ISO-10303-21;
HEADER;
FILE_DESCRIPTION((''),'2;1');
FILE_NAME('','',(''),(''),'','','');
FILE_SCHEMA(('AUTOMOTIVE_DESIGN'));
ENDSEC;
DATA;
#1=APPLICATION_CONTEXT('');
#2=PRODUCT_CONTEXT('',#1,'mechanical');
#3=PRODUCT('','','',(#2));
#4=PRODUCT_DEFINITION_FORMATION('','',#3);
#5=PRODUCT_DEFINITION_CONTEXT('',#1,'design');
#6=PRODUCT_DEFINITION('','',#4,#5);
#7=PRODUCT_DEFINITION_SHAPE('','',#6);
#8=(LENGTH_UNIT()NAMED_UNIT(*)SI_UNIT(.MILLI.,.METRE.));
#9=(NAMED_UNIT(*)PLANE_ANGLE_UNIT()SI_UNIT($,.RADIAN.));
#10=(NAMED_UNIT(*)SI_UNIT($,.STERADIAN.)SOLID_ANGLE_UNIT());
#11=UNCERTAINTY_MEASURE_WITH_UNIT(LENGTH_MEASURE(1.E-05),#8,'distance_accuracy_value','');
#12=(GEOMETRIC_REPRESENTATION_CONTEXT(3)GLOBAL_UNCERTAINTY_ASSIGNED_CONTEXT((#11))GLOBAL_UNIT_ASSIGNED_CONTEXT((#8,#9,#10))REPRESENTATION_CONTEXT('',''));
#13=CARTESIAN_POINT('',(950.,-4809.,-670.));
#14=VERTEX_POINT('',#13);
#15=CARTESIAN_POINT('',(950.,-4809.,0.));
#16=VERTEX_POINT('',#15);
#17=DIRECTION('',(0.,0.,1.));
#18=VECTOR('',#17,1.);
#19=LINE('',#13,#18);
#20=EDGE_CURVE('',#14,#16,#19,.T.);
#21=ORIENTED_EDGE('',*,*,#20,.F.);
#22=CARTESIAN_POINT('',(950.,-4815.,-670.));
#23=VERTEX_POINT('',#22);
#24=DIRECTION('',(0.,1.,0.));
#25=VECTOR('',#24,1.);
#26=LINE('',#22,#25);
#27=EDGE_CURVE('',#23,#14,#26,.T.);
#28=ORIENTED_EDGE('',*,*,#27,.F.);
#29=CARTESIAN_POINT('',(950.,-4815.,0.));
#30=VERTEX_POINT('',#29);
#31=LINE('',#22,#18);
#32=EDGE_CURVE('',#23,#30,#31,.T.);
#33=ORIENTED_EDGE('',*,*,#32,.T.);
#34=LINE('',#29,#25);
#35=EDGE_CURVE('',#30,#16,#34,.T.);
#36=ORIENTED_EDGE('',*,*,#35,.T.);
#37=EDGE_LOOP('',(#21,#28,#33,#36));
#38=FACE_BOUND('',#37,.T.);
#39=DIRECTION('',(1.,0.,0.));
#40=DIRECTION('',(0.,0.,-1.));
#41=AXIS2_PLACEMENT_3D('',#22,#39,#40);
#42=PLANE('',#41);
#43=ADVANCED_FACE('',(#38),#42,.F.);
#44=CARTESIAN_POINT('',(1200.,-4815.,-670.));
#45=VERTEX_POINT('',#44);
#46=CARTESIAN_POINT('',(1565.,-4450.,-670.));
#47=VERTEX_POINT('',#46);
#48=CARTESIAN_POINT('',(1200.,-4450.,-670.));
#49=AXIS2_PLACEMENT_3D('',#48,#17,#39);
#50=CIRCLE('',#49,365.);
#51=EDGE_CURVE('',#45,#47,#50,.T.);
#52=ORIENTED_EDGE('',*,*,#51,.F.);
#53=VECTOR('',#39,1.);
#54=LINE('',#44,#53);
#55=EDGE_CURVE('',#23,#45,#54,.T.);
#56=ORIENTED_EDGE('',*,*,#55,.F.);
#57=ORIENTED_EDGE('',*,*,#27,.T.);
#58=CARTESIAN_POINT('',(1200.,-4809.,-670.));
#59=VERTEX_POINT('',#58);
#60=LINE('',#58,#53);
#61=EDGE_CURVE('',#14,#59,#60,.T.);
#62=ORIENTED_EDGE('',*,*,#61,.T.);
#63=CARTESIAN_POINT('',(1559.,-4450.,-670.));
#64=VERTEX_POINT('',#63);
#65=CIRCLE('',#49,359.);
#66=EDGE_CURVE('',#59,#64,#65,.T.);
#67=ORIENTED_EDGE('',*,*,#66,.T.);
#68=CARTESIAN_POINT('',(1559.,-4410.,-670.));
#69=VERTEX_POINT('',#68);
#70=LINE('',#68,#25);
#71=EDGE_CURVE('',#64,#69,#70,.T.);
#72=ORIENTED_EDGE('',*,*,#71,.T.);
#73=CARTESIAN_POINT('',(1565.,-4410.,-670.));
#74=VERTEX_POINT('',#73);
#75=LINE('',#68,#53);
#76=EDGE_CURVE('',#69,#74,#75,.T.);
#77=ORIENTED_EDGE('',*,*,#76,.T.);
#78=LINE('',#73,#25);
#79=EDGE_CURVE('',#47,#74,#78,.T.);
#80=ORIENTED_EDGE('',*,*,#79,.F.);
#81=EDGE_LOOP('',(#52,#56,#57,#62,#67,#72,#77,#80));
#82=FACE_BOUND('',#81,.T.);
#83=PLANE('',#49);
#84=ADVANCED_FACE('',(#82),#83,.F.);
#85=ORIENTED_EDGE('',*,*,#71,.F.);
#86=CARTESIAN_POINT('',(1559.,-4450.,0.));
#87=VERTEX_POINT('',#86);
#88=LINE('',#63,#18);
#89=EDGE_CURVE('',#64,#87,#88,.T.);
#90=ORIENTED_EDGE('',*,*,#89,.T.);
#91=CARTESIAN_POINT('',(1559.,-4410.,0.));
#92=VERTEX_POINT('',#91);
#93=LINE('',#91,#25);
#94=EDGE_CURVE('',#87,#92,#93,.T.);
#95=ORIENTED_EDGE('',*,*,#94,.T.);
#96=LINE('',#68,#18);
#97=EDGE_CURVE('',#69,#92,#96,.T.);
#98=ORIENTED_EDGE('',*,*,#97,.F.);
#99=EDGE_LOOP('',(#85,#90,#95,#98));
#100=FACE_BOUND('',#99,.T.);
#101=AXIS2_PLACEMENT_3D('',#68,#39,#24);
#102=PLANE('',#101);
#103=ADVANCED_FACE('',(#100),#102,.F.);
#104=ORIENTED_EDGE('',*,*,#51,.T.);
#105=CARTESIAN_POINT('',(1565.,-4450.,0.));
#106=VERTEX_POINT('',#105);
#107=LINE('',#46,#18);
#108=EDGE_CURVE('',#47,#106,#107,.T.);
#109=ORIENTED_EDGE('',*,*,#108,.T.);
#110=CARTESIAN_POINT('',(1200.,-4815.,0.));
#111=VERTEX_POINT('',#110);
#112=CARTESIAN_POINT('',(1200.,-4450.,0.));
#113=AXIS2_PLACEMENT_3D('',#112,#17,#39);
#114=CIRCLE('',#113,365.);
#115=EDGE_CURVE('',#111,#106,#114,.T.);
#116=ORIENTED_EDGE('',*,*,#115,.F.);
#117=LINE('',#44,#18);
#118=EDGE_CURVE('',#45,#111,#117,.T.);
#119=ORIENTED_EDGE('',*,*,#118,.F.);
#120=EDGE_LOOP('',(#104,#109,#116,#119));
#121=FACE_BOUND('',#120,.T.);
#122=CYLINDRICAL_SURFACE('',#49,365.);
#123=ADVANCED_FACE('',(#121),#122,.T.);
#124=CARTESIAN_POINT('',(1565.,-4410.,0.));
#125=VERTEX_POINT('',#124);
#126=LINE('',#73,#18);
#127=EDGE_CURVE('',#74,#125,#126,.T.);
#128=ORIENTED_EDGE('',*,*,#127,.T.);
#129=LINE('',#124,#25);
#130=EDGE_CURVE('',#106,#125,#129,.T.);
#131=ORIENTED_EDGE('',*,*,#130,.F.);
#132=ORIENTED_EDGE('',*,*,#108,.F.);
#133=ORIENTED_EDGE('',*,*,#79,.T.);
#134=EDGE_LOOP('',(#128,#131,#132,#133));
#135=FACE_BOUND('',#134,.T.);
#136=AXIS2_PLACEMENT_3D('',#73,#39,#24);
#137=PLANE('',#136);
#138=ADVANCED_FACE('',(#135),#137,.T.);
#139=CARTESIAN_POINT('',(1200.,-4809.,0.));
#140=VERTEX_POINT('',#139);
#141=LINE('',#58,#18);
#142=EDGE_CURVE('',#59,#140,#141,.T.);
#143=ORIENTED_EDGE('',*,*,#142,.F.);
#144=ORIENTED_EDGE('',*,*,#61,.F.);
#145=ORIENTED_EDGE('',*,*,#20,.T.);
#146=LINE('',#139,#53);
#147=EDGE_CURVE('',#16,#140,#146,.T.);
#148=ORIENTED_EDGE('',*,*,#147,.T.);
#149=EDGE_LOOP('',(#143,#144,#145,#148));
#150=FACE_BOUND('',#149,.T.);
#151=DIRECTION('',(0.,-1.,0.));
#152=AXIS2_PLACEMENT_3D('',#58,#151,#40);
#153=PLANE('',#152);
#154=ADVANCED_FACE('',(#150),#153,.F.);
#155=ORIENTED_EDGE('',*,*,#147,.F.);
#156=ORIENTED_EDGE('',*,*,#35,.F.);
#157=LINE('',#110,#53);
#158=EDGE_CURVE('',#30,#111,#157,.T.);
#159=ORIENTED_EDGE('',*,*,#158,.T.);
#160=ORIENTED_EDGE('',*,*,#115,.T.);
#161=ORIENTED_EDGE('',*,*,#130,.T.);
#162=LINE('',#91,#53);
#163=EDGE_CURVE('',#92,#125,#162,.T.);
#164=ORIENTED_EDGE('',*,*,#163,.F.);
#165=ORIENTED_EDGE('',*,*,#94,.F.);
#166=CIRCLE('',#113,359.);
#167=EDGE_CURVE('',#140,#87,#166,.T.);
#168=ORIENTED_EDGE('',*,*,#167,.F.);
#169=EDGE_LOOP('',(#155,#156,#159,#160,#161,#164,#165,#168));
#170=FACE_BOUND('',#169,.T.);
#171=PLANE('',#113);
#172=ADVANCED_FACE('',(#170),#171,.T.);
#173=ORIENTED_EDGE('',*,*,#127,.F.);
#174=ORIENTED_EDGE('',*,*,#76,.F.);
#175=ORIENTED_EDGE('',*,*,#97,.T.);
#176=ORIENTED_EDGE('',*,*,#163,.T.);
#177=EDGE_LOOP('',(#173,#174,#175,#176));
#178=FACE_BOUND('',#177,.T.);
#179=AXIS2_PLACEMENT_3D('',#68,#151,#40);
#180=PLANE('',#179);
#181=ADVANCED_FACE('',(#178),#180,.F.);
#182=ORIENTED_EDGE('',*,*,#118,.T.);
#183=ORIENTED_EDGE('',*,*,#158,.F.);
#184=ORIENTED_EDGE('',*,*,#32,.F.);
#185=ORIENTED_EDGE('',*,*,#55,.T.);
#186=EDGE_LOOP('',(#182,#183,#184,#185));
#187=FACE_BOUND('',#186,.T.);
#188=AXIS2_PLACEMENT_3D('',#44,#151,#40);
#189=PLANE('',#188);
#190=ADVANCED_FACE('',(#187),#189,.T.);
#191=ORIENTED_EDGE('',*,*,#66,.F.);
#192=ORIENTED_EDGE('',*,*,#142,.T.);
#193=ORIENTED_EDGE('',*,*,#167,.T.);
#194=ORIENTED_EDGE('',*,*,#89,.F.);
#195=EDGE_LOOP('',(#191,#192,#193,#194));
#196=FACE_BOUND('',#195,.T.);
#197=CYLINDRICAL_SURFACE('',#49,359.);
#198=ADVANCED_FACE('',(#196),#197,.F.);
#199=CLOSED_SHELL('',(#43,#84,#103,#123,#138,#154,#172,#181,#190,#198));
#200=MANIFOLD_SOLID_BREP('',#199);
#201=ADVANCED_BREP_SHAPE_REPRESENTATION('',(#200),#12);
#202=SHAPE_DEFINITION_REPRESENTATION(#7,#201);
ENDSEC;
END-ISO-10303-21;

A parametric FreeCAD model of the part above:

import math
import FreeCAD as App
import Part
import Sketcher
from FreeCAD import Vector
Q = App.Units.Quantity

doc = App.newDocument("Part")
body = doc.addObject("PartDesign::Body", "Body")

sketch1 = doc.addObject("Sketcher::SketchObject", "Sketch")
body.addObject(sketch1)
sketch1.AttachmentSupport = (doc.XY_Plane, [""])
sketch1.MapMode = "FlatFace"
sketch1.addGeometry(Part.LineSegment(Vector(1565, -4450, 0), Vector(1565, -4410, 0)), False)
sketch1.addGeometry(Part.LineSegment(Vector(1565, -4410, 0), Vector(1559, -4410, 0)), False)
sketch1.addGeometry(Part.LineSegment(Vector(1559, -4410, 0), Vector(1559, -4450, 0)), False)
sketch1.addGeometry(Part.ArcOfCircle(Part.Circle(Vector(1200, -4450, 0), Vector(0, 0, 1), 359), math.radians(-90), math.radians(0)), False)
sketch1.addGeometry(Part.LineSegment(Vector(1200, -4809, 0), Vector(950, -4809, 0)), False)
sketch1.addGeometry(Part.LineSegment(Vector(950, -4809, 0), Vector(950, -4815, 0)), False)
sketch1.addGeometry(Part.LineSegment(Vector(950, -4815, 0), Vector(1200, -4815, 0)), False)
sketch1.addGeometry(Part.ArcOfCircle(Part.Circle(Vector(1200, -4450, 0), Vector(0, 0, 1), 365), math.radians(-90), math.radians(0)), False)
sketch1.addConstraint(Sketcher.Constraint("Coincident", 0, 2, 1, 1))
sketch1.addConstraint(Sketcher.Constraint("Coincident", 1, 2, 2, 1))
sketch1.addConstraint(Sketcher.Constraint("Tangent", 2, 2, 3, 2))
sketch1.addConstraint(Sketcher.Constraint("Tangent", 3, 1, 4, 1))
sketch1.addConstraint(Sketcher.Constraint("Coincident", 4, 2, 5, 1))
sketch1.addConstraint(Sketcher.Constraint("Coincident", 5, 2, 6, 1))
sketch1.addConstraint(Sketcher.Constraint("Tangent", 6, 2, 7, 1))
sketch1.addConstraint(Sketcher.Constraint("Tangent", 7, 2, 0, 1))
sketch1.addConstraint(Sketcher.Constraint("Vertical", 0))
sketch1.addConstraint(Sketcher.Constraint("Horizontal", 1))
sketch1.addConstraint(Sketcher.Constraint("Vertical", 2))
sketch1.addConstraint(Sketcher.Constraint("Horizontal", 4))
sketch1.addConstraint(Sketcher.Constraint("Vertical", 5))
sketch1.addConstraint(Sketcher.Constraint("Horizontal", 6))
sketch1.addConstraint(Sketcher.Constraint("Coincident", 7, 3, 3, 3))
sketch1.addConstraint(Sketcher.Constraint("Radius", 3, Q("359 mm")))
sketch1.addConstraint(Sketcher.Constraint("Radius", 7, Q("365 mm")))
sketch1.addConstraint(Sketcher.Constraint("DistanceX", 4, 2, 4, 1, Q("250 mm")))
sketch1.addConstraint(Sketcher.Constraint("DistanceY", 0, 1, 0, 2, Q("40 mm")))
sketch1.addConstraint(Sketcher.Constraint("DistanceX", -1, 1, 3, 3, Q("1200 mm")))
sketch1.addConstraint(Sketcher.Constraint("DistanceY", 3, 3, -1, 1, Q("4450 mm")))
pad1 = doc.addObject("PartDesign::Pad", "Pad")
body.addObject(pad1)
pad1.Profile = sketch1
pad1.Length = 670
pad1.Reversed = True

doc.recompute()
